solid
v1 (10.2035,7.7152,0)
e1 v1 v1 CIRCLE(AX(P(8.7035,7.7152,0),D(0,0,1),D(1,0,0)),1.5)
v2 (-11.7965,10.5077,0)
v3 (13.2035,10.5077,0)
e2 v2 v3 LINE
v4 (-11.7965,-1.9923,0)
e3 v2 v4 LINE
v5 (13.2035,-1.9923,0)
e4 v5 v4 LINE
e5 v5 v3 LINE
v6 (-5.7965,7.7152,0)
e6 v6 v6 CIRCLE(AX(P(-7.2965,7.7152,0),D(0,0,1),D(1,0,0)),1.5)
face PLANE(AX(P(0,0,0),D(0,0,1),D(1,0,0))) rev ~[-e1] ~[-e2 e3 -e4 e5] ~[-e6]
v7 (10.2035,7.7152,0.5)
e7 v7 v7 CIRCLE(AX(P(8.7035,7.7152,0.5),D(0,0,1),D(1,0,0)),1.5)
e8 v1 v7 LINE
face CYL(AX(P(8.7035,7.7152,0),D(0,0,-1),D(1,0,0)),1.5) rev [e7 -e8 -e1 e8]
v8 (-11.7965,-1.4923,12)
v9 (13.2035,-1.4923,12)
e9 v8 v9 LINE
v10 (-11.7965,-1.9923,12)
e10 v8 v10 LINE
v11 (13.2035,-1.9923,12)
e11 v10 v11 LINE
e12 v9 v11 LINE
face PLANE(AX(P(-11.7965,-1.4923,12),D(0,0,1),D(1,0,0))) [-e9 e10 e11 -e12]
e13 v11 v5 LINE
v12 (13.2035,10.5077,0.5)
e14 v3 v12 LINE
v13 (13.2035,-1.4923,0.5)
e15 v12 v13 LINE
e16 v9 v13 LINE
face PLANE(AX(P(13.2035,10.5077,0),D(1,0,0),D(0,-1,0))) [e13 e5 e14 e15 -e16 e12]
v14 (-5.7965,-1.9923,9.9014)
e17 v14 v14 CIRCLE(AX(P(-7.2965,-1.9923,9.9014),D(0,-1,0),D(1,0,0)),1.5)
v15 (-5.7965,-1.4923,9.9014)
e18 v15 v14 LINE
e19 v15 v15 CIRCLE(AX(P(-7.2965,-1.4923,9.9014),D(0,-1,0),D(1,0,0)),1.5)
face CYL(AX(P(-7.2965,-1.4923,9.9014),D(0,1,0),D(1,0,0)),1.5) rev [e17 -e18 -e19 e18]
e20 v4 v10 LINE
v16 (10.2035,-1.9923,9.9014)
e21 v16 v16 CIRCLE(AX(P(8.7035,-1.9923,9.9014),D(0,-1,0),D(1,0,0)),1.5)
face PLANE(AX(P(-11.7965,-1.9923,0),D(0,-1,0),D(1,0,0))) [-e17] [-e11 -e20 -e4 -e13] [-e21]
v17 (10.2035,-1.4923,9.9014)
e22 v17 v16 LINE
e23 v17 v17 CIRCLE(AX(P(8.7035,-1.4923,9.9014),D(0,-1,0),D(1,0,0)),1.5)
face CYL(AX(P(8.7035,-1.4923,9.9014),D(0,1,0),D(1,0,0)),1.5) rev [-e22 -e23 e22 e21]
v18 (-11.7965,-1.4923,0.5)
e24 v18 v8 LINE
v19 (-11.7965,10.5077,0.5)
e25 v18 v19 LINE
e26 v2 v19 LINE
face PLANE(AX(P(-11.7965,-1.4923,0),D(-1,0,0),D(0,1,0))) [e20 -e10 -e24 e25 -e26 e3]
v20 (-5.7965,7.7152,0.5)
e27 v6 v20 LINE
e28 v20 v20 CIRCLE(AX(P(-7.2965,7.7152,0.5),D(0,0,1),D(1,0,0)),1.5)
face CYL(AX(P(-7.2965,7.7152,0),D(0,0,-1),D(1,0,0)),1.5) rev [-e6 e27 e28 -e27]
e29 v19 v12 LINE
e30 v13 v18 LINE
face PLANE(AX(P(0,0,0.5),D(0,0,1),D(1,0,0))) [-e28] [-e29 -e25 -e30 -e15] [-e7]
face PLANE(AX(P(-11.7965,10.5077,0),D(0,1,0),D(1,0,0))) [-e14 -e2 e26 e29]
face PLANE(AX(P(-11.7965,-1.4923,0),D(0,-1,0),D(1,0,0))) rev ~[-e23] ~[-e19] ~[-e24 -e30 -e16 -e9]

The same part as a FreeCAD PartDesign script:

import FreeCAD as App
import Part
import Sketcher
Q = App.Units.Quantity

doc = App.newDocument("Part")
params = doc.addObject("Spreadsheet::Sheet", "Params")
for row, (alias, value) in enumerate([
    ("sketch1_diameter", "3 mm"),
    ("sketch1_width", "25 mm"),
    ("sketch1_height", "12 mm"),
    ("pad1_length", "0.5 mm"),
    ("sketch2_diameter", "3 mm"),
    ("sketch2_height", "12 mm"),
    ("sketch2_width", "25 mm"),
    ("pad2_length", "0.5 mm"),
], start=1):
    params.set(f"A{row}", alias)
    params.set(f"B{row}", "=" + value)
    params.setAlias(f"B{row}", alias)

body = doc.addObject("PartDesign::Body", "Body")

# Sketch on XY plane
sketch1 = body.newObject("Sketcher::SketchObject", "Sketch")
sketch1.AttachmentSupport = (doc.getObject("XY_Plane"), [""])
sketch1.MapMode = "FlatFace"
sketch1.addGeometry([
    Part.LineSegment(App.Vector(13.2, 10.5, 0), App.Vector(-11.8, 10.5, 0)),  # 0
    Part.LineSegment(App.Vector(-11.8, 10.5, 0), App.Vector(-11.8, -1.5, 0)),  # 1
    Part.LineSegment(App.Vector(-11.8, -1.5, 0), App.Vector(13.2, -1.5, 0)),  # 2
    Part.LineSegment(App.Vector(13.2, -1.5, 0), App.Vector(13.2, 10.5, 0)),  # 3
    Part.Circle(App.Vector(-7.3, 7.7, 0), App.Vector(0, 0, 1), 1.5),  # 4
    Part.Circle(App.Vector(8.7, 7.7, 0), App.Vector(0, 0, 1), 1.5),  # 5
], False)
sketch1.addConstraint([
    Sketcher.Constraint("Coincident", 0, 2, 1, 1),
    Sketcher.Constraint("Coincident", 1, 2, 2, 1),
    Sketcher.Constraint("Coincident", 2, 2, 3, 1),
    Sketcher.Constraint("Coincident", 3, 2, 0, 1),
    Sketcher.Constraint("Horizontal", 0),
    Sketcher.Constraint("Vertical", 1),
    Sketcher.Constraint("Horizontal", 2),
    Sketcher.Constraint("Vertical", 3),
    Sketcher.Constraint("Equal", 4, 5),
    Sketcher.Constraint("Horizontal", 4, 3, 5, 3),
    Sketcher.Constraint("Diameter", 4, Q("3 mm")),
    Sketcher.Constraint("DistanceX", 0, 2, 0, 1, Q("25 mm")),
    Sketcher.Constraint("DistanceY", 1, 2, 1, 1, Q("12 mm")),
    Sketcher.Constraint("DistanceX", 4, 3, 5, 3, Q("16 mm")),
    Sketcher.Constraint("DistanceX", 0, 2, 4, 3, Q("4.5 mm")),
    Sketcher.Constraint("DistanceX", 4, 3, -1, 1, Q("7.2965 mm")),
    Sketcher.Constraint("DistanceY", -1, 1, 4, 3, Q("7.7152 mm")),
    Sketcher.Constraint("DistanceY", -1, 1, 0, 2, Q("10.5077 mm")),
])
sketch1.setExpression("Constraints[10]", "Params.sketch1_diameter")
sketch1.setExpression("Constraints[11]", "Params.sketch1_width")
sketch1.setExpression("Constraints[12]", "Params.sketch1_height")
pad1 = body.newObject("PartDesign::Pad", "Pad")
pad1.Profile = sketch1
pad1.setExpression("Length", "Params.pad1_length")

# Sketch on XZ plane
sketch2 = body.newObject("Sketcher::SketchObject", "Sketch001")
sketch2.AttachmentSupport = (doc.getObject("XZ_Plane"), [""])
sketch2.MapMode = "FlatFace"
sketch2.AttachmentOffset = App.Placement(App.Vector(0, 0, 1.4923), App.Rotation())
sketch2.addGeometry([
    Part.LineSegment(App.Vector(-11.8, 0, 0), App.Vector(13.2, 0, 0)),  # 0
    Part.LineSegment(App.Vector(13.2, 0, 0), App.Vector(13.2, 12, 0)),  # 1
    Part.LineSegment(App.Vector(13.2, 12, 0), App.Vector(-11.8, 12, 0)),  # 2
    Part.LineSegment(App.Vector(-11.8, 12, 0), App.Vector(-11.8, 0, 0)),  # 3
    Part.Circle(App.Vector(-7.3, 9.9, 0), App.Vector(0, 0, 1), 1.5),  # 4
    Part.Circle(App.Vector(8.7, 9.9, 0), App.Vector(0, 0, 1), 1.5),  # 5
], False)
sketch2.addConstraint([
    Sketcher.Constraint("Coincident", 0, 2, 1, 1),
    Sketcher.Constraint("Coincident", 1, 2, 2, 1),
    Sketcher.Constraint("Coincident", 2, 2, 3, 1),
    Sketcher.Constraint("Coincident", 3, 2, 0, 1),
    Sketcher.Constraint("Horizontal", 0),
    Sketcher.Constraint("Vertical", 1),
    Sketcher.Constraint("Horizontal", 2),
    Sketcher.Constraint("Vertical", 3),
    Sketcher.Constraint("Equal", 4, 5),
    Sketcher.Constraint("PointOnObject", 0, 2, -1),
    Sketcher.Constraint("Horizontal", 4, 3, 5, 3),
    Sketcher.Constraint("Diameter", 4, Q("3 mm")),
    Sketcher.Constraint("DistanceY", 1, 1, 1, 2, Q("12 mm")),
    Sketcher.Constraint("DistanceX", 0, 1, 0, 2, Q("25 mm")),
    Sketcher.Constraint("DistanceX", 4, 3, 5, 3, Q("16 mm")),
    Sketcher.Constraint("DistanceX", 5, 3, 0, 2, Q("4.5 mm")),
    Sketcher.Constraint("DistanceX", 4, 3, -1, 1, Q("7.2965 mm")),
    Sketcher.Constraint("DistanceY", -1, 1, 4, 3, Q("9.9014 mm")),
])
sketch2.setExpression("Constraints[11]", "Params.sketch2_diameter")
sketch2.setExpression("Constraints[12]", "Params.sketch2_height")
sketch2.setExpression("Constraints[13]", "Params.sketch2_width")
pad2 = body.newObject("PartDesign::Pad", "Pad001")
pad2.Profile = sketch2
pad2.setExpression("Length", "Params.pad2_length")

doc.recompute()
